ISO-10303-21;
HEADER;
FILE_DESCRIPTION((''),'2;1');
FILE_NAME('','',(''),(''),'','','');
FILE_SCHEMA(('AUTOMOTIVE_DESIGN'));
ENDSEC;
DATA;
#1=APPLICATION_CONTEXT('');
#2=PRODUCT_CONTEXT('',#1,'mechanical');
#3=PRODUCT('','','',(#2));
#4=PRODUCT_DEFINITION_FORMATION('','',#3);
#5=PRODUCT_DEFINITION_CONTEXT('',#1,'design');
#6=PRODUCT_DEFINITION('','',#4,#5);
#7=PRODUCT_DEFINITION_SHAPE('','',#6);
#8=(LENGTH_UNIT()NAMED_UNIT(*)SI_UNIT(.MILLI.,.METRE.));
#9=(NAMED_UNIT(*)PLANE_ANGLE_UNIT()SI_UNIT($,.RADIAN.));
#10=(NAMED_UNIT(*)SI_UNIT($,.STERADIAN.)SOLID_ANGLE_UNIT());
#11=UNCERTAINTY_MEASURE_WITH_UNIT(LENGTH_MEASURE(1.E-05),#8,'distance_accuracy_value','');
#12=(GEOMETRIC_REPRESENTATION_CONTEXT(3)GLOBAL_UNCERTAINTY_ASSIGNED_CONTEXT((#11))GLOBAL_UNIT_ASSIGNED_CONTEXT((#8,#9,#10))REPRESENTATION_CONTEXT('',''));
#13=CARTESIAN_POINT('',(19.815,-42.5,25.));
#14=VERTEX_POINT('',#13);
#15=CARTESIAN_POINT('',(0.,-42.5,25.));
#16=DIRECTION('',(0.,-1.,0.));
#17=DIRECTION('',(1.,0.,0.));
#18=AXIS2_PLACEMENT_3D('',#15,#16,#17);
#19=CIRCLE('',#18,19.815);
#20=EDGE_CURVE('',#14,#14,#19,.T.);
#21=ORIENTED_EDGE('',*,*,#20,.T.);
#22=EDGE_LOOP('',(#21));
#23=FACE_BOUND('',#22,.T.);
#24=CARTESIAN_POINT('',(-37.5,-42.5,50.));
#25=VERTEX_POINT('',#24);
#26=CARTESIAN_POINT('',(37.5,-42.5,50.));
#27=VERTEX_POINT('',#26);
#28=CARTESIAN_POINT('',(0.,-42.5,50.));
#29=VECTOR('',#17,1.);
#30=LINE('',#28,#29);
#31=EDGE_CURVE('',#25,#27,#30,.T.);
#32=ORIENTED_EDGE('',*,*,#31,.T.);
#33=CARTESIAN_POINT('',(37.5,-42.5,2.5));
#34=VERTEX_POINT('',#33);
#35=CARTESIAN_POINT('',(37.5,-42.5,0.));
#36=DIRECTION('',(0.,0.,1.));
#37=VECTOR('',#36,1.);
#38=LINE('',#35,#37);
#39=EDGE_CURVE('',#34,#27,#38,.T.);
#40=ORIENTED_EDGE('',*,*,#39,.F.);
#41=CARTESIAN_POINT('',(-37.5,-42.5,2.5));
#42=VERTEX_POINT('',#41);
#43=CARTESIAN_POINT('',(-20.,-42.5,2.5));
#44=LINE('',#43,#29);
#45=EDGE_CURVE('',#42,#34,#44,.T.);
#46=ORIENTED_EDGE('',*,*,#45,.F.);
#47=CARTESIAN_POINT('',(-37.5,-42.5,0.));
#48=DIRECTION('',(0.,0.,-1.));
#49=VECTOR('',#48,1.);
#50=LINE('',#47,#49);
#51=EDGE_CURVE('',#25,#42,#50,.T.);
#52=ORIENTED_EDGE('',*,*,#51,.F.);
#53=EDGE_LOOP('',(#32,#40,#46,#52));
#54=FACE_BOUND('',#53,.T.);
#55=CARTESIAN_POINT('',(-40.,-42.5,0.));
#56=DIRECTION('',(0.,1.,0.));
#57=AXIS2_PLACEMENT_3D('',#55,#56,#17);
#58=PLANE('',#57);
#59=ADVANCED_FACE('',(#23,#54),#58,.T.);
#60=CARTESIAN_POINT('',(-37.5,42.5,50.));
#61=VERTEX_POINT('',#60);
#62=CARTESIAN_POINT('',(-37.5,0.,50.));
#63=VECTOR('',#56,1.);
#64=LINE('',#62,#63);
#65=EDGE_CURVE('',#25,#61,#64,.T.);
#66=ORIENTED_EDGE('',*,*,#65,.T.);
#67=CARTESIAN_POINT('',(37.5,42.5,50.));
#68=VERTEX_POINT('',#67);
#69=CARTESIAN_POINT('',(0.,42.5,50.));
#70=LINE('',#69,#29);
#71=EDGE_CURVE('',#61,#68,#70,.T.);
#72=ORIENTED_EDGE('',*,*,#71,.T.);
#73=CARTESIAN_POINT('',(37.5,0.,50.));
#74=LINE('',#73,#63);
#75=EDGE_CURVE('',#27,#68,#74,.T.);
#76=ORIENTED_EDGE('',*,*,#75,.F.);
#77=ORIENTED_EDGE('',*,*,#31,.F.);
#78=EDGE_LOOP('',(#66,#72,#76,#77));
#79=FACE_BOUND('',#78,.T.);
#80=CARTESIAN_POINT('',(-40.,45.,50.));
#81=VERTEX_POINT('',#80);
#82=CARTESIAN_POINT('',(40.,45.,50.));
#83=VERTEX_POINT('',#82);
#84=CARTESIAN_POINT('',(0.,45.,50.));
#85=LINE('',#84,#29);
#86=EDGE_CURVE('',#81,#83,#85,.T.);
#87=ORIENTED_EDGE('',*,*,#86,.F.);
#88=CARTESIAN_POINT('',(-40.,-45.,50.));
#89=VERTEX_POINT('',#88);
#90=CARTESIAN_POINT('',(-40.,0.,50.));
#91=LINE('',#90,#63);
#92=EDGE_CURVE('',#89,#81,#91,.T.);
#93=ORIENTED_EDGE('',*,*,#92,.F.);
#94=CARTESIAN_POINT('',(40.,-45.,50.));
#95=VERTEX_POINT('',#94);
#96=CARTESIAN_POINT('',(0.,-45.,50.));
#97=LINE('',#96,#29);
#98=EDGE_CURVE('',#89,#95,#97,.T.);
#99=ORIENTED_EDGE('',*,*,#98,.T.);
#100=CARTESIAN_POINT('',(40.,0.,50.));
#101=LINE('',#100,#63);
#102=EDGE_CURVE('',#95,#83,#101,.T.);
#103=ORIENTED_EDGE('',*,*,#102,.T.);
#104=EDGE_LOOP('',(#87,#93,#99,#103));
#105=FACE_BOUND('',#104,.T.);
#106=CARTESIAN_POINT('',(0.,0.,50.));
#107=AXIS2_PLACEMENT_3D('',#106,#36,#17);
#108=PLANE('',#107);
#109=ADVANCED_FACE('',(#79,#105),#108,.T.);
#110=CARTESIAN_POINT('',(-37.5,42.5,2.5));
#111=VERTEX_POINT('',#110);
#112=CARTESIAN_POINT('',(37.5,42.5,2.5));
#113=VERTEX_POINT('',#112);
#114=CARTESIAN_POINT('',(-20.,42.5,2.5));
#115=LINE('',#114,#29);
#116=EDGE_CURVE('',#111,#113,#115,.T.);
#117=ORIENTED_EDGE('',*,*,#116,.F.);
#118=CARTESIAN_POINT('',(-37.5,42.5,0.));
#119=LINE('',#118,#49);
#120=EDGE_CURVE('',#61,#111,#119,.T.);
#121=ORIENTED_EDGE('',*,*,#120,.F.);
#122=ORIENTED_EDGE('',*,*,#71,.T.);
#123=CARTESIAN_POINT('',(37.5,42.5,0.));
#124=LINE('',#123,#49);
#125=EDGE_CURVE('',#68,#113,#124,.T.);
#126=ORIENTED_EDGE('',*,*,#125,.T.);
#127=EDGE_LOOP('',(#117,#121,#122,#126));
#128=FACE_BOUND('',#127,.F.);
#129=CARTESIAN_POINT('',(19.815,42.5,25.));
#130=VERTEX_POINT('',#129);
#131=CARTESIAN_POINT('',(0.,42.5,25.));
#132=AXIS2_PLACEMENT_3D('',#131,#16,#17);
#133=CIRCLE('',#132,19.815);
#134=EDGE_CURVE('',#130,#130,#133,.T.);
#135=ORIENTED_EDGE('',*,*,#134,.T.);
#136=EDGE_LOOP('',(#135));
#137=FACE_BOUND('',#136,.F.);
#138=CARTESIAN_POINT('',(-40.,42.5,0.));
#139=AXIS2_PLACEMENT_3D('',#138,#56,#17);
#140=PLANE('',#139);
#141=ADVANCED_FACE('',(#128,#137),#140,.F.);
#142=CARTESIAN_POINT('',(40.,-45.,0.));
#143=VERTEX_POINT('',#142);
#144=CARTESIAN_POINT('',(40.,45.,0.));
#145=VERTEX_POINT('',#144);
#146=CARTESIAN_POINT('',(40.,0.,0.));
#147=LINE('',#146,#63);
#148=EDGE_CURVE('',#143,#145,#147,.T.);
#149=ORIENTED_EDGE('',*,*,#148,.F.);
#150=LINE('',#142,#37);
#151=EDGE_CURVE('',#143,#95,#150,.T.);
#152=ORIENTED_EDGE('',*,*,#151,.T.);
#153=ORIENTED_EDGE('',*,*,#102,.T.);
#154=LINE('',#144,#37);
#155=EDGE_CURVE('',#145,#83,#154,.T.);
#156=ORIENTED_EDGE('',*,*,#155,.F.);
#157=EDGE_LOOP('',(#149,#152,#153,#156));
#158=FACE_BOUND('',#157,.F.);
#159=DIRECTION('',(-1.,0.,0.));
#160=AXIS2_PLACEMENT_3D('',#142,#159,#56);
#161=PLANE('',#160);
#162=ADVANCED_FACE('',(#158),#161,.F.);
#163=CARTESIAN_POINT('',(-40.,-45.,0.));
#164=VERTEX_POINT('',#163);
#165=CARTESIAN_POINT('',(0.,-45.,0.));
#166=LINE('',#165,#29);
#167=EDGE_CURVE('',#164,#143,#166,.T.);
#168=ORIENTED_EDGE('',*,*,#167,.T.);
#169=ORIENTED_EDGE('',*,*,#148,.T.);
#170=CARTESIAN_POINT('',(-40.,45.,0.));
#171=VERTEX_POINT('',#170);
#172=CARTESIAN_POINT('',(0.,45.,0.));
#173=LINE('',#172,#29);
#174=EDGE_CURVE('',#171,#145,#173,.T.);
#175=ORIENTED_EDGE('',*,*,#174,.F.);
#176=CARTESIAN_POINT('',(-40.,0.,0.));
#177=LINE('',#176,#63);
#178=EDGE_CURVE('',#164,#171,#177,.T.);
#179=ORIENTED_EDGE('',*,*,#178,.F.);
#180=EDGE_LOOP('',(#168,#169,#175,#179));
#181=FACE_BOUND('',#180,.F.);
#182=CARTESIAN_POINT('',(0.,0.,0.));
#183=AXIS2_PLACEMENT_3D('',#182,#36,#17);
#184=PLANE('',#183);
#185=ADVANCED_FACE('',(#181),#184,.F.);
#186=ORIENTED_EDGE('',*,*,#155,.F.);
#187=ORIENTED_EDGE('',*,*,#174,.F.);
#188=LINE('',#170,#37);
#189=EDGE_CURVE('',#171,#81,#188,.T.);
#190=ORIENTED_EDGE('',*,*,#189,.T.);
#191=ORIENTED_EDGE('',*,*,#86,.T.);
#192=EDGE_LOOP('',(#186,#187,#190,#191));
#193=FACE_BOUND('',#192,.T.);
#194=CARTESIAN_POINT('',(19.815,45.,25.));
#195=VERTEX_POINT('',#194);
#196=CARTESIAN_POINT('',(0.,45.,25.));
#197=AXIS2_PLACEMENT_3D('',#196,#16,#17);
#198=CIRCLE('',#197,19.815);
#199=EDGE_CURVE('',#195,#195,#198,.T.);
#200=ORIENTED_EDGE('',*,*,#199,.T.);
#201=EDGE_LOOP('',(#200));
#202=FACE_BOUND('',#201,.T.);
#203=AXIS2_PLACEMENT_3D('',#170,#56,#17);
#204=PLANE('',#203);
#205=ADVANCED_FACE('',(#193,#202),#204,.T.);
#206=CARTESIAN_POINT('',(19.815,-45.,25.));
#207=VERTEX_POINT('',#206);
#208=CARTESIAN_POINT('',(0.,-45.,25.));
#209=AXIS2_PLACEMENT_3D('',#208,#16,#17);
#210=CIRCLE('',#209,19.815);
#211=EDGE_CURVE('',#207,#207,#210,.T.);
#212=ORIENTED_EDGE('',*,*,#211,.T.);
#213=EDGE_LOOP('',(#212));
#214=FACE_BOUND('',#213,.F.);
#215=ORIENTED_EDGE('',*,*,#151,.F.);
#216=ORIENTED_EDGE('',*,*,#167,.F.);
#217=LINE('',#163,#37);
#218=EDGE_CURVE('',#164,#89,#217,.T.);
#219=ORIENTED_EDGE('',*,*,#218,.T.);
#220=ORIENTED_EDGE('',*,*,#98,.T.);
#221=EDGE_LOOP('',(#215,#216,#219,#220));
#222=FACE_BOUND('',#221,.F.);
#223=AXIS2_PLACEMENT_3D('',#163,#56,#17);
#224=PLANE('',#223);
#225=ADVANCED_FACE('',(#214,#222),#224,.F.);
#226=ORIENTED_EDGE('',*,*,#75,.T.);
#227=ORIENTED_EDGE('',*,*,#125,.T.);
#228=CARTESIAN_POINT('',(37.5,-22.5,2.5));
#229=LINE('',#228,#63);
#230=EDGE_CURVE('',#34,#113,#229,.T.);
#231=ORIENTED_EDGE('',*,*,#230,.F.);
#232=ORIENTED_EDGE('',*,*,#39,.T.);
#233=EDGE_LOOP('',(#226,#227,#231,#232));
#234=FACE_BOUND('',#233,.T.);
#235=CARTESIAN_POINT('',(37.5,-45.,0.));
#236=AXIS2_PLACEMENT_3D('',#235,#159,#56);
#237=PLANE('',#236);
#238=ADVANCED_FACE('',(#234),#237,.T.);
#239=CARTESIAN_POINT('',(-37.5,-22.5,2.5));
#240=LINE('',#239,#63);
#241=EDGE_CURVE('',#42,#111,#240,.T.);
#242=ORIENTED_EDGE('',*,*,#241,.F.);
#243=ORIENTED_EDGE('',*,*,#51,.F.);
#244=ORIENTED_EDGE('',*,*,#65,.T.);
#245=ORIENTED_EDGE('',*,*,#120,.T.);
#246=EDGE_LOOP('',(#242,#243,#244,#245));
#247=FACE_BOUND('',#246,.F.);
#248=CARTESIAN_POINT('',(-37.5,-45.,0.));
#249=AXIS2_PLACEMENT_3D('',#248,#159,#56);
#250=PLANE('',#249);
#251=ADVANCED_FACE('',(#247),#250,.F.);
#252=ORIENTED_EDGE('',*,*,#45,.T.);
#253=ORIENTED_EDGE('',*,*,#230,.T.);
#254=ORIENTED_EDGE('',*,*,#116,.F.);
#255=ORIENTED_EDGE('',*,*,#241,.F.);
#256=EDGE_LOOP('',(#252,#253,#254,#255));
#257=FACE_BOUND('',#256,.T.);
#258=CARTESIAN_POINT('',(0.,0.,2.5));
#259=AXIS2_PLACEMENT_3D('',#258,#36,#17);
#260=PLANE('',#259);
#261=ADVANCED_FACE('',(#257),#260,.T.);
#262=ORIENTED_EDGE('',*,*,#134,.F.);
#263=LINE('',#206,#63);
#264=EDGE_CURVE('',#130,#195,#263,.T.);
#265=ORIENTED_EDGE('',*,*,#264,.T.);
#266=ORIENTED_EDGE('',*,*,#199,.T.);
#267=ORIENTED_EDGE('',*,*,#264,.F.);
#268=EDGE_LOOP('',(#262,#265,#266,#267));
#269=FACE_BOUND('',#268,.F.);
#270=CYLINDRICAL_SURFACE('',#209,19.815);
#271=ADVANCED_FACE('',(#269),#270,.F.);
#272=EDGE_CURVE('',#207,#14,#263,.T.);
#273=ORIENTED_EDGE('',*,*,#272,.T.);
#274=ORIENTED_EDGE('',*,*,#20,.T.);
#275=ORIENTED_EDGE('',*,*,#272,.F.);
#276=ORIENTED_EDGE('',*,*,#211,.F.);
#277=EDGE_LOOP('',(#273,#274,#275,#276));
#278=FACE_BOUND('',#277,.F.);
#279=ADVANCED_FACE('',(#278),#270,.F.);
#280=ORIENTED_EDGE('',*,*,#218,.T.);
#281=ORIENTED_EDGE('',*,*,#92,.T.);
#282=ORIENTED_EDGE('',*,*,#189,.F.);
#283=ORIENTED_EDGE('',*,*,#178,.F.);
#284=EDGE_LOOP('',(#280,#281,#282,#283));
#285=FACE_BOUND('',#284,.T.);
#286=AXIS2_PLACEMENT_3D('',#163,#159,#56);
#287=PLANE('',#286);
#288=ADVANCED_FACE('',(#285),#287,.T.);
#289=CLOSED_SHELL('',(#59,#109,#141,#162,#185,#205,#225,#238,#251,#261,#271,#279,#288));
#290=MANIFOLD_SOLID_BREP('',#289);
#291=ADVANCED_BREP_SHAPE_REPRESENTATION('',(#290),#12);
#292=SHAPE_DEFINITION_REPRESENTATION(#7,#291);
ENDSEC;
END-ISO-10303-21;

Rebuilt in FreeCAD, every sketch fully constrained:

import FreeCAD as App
import Part
import Sketcher

V = App.Vector
Q = App.Units.Quantity


def faces_at(feature, points):
    """Names of the faces that lie closest to the given points."""
    faces = feature.Shape.Faces
    near = lambda p: min(range(len(faces)), key=lambda i: faces[i].distToShape(Part.Vertex(*p))[0])
    return sorted({f"Face{near(p) + 1}" for p in points})


def add_polygon(sketch, points):
    """Adds a closed chain of lines whose ends are joined by coincident constraints."""
    first, n = sketch.GeometryCount, len(points)
    for a, b in zip(points, points[1:] + points[:1]):
        sketch.addGeometry(Part.LineSegment(App.Vector(*a, 0), App.Vector(*b, 0)), False)
    for i in range(n):
        sketch.addConstraint(Sketcher.Constraint("Coincident", first + i, 2, first + (i + 1) % n, 1))

doc = App.newDocument("Part")
params = doc.addObject("Spreadsheet::Sheet", "Params")
for row, (alias, value) in enumerate([
    ("sketch1_width", "80 mm"),
    ("sketch1_height", "90 mm"),
    ("pad1_length", "50 mm"),
    ("thickness_wall", "2.5 mm"),
    ("sketch2_diameter", "39.63 mm"),
], start=1):
    params.set(f"A{row}", alias)
    params.set(f"B{row}", "=" + value)
    params.setAlias(f"B{row}", alias)

body = doc.addObject("PartDesign::Body", "Body")

sketch1 = body.newObject("Sketcher::SketchObject", "Sketch")
sketch1.AttachmentSupport = (doc.getObject("XY_Plane"), [""])
sketch1.MapMode = "FlatFace"
add_polygon(sketch1, [(-40, 45), (-40, -45), (40, -45), (40, 45)])
sketch1.addConstraint(Sketcher.Constraint("Vertical", 0))
sketch1.addConstraint(Sketcher.Constraint("Horizontal", 1))
sketch1.addConstraint(Sketcher.Constraint("Vertical", 2))
sketch1.addConstraint(Sketcher.Constraint("Horizontal", 3))
sketch1.addConstraint(Sketcher.Constraint("Symmetric", 0, 2, 2, 2, -1, 1))
sketch1.addConstraint(Sketcher.Constraint("DistanceX", 1, 1, 1, 2, Q("80 mm")))
sketch1.addConstraint(Sketcher.Constraint("DistanceY", 0, 2, 0, 1, Q("90 mm")))
sketch1.setExpression("Constraints[9]", "Params.sketch1_width")
sketch1.setExpression("Constraints[10]", "Params.sketch1_height")
pad1 = body.newObject("PartDesign::Pad", "Pad")
pad1.Profile = sketch1
pad1.setExpression("Length", "Params.pad1_length")
doc.recompute()

thickness = body.newObject("PartDesign::Thickness", "Thickness")
thickness.Base = (pad1, faces_at(pad1, [(0, 0, 50)]))
thickness.setExpression("Value", "Params.thickness_wall")
thickness.Reversed = True
thickness.Join = "Arc"

sketch2 = body.newObject("Sketcher::SketchObject", "Sketch001")
sketch2.AttachmentSupport = (doc.getObject("XZ_Plane"), [""])
sketch2.MapMode = "FlatFace"
sketch2.AttachmentOffset = App.Placement(V(0, 0, 45), App.Rotation())
sketch2.addGeometry(Part.Circle(V(0, 25, 0), V(0, 0, 1), 20), False)
sketch2.addConstraint(Sketcher.Constraint("PointOnObject", 0, 3, -2))
sketch2.addConstraint(Sketcher.Constraint("Diameter", 0, Q("39.63 mm")))
sketch2.addConstraint(Sketcher.Constraint("DistanceY", -1, 1, 0, 3, Q("25 mm")))
sketch2.setExpression("Constraints[1]", "Params.sketch2_diameter")
pocket1 = body.newObject("PartDesign::Pocket", "Pocket")
pocket1.Profile = sketch2
pocket1.Type = "ThroughAll"

doc.recompute()
